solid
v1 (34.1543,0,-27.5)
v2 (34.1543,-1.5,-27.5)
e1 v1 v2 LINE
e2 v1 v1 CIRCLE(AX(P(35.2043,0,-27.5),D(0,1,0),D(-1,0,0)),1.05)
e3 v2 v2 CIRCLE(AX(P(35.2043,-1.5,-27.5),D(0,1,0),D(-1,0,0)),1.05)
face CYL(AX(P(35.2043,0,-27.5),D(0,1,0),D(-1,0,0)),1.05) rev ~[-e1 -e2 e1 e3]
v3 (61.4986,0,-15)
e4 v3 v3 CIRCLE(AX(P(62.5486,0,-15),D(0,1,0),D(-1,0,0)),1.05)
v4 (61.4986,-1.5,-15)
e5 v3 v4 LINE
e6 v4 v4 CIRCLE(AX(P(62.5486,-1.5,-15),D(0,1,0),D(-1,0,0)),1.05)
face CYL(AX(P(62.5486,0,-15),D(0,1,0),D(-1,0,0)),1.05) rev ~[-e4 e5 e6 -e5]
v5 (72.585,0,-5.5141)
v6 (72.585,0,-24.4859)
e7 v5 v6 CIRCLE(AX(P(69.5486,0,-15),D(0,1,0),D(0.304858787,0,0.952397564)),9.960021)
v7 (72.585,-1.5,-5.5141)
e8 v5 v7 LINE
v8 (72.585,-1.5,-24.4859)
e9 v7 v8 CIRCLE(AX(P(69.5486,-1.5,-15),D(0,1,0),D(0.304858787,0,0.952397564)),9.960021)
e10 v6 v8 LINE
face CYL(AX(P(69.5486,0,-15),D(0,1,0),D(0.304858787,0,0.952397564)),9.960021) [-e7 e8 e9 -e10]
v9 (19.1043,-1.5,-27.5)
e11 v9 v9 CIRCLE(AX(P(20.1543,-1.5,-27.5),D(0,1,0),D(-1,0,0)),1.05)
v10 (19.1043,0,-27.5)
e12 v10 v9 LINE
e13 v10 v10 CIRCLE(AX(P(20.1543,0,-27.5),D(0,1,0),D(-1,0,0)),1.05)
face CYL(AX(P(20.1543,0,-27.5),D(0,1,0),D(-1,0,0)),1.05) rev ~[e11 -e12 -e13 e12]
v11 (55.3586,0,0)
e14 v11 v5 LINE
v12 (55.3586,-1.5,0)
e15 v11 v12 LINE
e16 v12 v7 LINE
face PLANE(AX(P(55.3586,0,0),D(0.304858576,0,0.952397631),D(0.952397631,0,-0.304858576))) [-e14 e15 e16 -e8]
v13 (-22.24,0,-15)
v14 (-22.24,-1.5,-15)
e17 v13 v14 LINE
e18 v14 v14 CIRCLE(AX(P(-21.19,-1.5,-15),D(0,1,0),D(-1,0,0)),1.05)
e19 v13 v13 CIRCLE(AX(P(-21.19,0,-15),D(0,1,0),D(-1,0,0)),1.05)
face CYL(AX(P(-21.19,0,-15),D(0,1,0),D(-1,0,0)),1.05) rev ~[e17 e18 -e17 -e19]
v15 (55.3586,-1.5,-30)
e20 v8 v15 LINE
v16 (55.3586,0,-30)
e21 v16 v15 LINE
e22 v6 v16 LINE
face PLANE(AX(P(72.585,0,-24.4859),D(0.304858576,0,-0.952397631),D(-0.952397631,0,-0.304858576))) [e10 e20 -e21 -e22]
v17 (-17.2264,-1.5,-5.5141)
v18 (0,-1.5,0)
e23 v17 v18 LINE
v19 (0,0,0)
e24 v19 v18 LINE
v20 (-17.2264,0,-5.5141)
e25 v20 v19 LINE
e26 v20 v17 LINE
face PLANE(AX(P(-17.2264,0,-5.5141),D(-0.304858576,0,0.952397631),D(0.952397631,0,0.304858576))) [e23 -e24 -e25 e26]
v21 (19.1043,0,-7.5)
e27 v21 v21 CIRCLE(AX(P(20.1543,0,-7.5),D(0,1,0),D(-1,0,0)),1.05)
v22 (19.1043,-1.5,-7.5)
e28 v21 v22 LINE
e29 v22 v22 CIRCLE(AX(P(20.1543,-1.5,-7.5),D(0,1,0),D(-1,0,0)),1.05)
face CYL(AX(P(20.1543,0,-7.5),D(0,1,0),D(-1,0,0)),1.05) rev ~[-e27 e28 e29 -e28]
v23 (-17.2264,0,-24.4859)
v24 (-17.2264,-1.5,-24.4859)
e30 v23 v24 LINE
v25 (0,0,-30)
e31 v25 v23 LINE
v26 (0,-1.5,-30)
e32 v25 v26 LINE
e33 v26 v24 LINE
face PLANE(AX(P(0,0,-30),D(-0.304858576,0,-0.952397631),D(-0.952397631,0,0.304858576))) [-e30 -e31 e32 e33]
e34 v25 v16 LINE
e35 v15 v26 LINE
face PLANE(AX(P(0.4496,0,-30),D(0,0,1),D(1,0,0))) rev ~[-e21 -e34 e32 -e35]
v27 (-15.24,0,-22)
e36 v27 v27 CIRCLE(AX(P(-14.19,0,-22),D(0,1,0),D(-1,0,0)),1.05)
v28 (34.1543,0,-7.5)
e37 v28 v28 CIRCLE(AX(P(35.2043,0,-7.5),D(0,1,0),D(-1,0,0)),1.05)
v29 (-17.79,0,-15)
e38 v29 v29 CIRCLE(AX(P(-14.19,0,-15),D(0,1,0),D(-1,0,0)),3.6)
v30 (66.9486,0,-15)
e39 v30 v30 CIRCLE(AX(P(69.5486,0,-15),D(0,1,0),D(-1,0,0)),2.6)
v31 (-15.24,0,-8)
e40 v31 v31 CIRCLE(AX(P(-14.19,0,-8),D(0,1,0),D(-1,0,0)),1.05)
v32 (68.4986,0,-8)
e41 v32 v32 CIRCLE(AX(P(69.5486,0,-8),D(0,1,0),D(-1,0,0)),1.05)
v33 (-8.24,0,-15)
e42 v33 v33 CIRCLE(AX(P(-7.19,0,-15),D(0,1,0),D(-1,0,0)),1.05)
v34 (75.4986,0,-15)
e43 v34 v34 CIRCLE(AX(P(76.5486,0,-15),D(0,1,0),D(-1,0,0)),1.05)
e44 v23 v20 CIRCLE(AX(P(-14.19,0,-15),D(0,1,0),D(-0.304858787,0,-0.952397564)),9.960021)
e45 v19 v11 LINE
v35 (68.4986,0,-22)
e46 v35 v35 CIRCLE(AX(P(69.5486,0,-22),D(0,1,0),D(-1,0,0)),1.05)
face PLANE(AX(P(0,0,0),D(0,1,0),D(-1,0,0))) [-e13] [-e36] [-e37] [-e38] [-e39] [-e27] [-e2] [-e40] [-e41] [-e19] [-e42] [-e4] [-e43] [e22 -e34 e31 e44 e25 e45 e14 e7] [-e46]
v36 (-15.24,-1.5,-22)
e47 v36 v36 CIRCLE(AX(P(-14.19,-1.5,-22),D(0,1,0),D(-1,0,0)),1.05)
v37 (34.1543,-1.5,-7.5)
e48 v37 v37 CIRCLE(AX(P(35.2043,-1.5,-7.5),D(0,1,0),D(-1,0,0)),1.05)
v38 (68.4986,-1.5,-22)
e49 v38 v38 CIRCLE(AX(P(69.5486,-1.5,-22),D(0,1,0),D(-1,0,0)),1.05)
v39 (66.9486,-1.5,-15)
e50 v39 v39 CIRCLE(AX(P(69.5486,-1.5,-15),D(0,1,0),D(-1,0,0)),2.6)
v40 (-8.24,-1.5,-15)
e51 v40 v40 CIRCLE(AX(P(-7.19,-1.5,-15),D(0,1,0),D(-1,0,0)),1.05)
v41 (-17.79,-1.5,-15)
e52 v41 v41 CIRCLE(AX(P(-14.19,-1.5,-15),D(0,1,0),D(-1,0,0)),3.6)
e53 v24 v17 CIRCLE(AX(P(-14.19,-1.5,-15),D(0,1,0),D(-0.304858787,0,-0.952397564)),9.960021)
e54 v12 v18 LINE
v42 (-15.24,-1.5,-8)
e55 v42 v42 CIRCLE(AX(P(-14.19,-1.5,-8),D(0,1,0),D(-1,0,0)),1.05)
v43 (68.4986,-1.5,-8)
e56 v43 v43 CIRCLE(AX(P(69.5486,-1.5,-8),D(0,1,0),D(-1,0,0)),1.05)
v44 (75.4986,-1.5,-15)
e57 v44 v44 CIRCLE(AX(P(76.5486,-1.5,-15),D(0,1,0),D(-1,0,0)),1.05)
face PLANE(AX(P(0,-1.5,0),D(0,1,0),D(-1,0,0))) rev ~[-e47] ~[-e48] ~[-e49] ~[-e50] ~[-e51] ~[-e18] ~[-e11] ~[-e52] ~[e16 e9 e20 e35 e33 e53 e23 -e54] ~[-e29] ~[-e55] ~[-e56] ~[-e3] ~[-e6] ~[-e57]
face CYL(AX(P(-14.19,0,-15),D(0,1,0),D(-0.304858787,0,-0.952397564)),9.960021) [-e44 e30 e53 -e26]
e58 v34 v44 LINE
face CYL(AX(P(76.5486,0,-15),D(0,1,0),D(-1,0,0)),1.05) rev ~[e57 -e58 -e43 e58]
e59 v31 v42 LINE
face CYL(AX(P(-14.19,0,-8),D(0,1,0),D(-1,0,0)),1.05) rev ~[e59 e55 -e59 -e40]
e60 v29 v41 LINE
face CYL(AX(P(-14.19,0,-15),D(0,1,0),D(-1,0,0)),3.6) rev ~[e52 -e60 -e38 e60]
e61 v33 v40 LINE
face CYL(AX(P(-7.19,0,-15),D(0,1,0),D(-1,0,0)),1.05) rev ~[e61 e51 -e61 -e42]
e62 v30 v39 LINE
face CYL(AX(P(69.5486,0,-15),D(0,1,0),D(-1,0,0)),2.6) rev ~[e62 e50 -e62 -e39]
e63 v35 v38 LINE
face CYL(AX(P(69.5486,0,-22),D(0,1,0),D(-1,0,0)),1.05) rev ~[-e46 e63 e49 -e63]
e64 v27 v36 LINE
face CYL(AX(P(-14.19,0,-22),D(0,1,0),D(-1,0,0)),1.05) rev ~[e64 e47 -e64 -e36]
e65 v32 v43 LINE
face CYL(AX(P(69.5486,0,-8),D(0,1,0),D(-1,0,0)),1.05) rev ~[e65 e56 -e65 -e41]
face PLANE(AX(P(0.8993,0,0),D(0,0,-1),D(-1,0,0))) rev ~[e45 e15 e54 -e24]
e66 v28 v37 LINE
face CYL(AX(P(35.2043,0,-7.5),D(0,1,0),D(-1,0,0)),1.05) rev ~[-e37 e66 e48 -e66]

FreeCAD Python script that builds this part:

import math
import FreeCAD as App
import Part
import Sketcher

V = App.Vector
Q = App.Units.Quantity

doc = App.newDocument("Part")
body = doc.addObject("PartDesign::Body", "Body")

sketch1 = body.newObject("Sketcher::SketchObject", "Sketch")
sketch1.AttachmentSupport = (doc.getObject("XZ_Plane"), [""])
sketch1.MapMode = "FlatFace"
sketch1.addGeometry([
    Part.LineSegment(V(0, -30, 0), V(-17.2, -24.5, 0)),
    Part.ArcOfCircle(Part.Circle(V(-14.2, -15, 0), V(0, 0, 1), 10), math.radians(108), math.radians(252)),
    Part.LineSegment(V(-17.2, -5.5, 0), V(0, 0, 0)),
    Part.LineSegment(V(0, 0, 0), V(55.4, 0, 0)),
    Part.LineSegment(V(55.4, 0, 0), V(72.6, -5.5, 0)),
    Part.ArcOfCircle(Part.Circle(V(69.5, -15, 0), V(0, 0, 1), 10), math.radians(-72), math.radians(72)),
    Part.LineSegment(V(72.6, -24.5, 0), V(55.4, -30, 0)),
    Part.LineSegment(V(55.4, -30, 0), V(0, -30, 0)),
    Part.Circle(V(20.2, -7.5, 0), V(0, 0, 1), 1.1),
    Part.Circle(V(35.2, -27.5, 0), V(0, 0, 1), 1.1),
    Part.Circle(V(20.2, -27.5, 0), V(0, 0, 1), 1.1),
    Part.Circle(V(35.2, -7.5, 0), V(0, 0, 1), 1.1),
    Part.Circle(V(-14.2, -8, 0), V(0, 0, 1), 1.1),
    Part.Circle(V(-14.2, -22, 0), V(0, 0, 1), 1.1),
    Part.Circle(V(-7.2, -15, 0), V(0, 0, 1), 1.1),
    Part.Circle(V(-14.2, -15, 0), V(0, 0, 1), 3.6),
    Part.Circle(V(-21.2, -15, 0), V(0, 0, 1), 1.1),
    Part.Circle(V(69.5, -8, 0), V(0, 0, 1), 1.1),
    Part.Circle(V(69.5, -22, 0), V(0, 0, 1), 1.1),
    Part.Circle(V(76.5, -15, 0), V(0, 0, 1), 1.1),
    Part.Circle(V(69.5, -15, 0), V(0, 0, 1), 2.6),
    Part.Circle(V(62.5, -15, 0), V(0, 0, 1), 1.1),
], False)
sketch1.addConstraint([
    Sketcher.Constraint("Tangent", 0, 2, 1, 2),
    Sketcher.Constraint("Tangent", 1, 1, 2, 1),
    Sketcher.Constraint("Coincident", 2, 2, 3, 1),
    Sketcher.Constraint("Coincident", 3, 2, 4, 1),
    Sketcher.Constraint("Tangent", 4, 2, 5, 2),
    Sketcher.Constraint("Tangent", 5, 1, 6, 1),
    Sketcher.Constraint("Coincident", 6, 2, 7, 1),
    Sketcher.Constraint("Coincident", 7, 2, 0, 1),
    Sketcher.Constraint("Horizontal", 3),
    Sketcher.Constraint("Horizontal", 7),
    Sketcher.Constraint("Coincident", 2, 2, -1, 1),
    Sketcher.Constraint("Coincident", 15, 3, 1, 3),
    Sketcher.Constraint("Coincident", 20, 3, 5, 3),
    Sketcher.Constraint("Equal", 1, 5),
    Sketcher.Constraint("Equal", 8, 9),
    Sketcher.Constraint("Equal", 9, 10),
    Sketcher.Constraint("Equal", 10, 11),
    Sketcher.Constraint("Equal", 11, 12),
    Sketcher.Constraint("Equal", 12, 13),
    Sketcher.Constraint("Equal", 13, 14),
    Sketcher.Constraint("Equal", 14, 16),
    Sketcher.Constraint("Equal", 16, 17),
    Sketcher.Constraint("Equal", 17, 18),
    Sketcher.Constraint("Equal", 18, 19),
    Sketcher.Constraint("Equal", 19, 21),
    Sketcher.Constraint("PointOnObject", 7, 2, -2),
    Sketcher.Constraint("Parallel", 0, 4),
    Sketcher.Constraint("Parallel", 2, 6),
    Sketcher.Constraint("Horizontal", 1, 3, 5, 3),
    Sketcher.Constraint("Horizontal", 9, 3, 10, 3),
    Sketcher.Constraint("Horizontal", 8, 3, 11, 3),
    Sketcher.Constraint("Horizontal", 5, 3, 14, 3),
    Sketcher.Constraint("Horizontal", 15, 3, 16, 3),
    Sketcher.Constraint("Horizontal", 12, 3, 17, 3),
    Sketcher.Constraint("Horizontal", 13, 3, 18, 3),
    Sketcher.Constraint("Horizontal", 16, 3, 19, 3),
    Sketcher.Constraint("Horizontal", 20, 3, 21, 3),
    Sketcher.Constraint("Horizontal", 1, 1, 4, 2),
    Sketcher.Constraint("Vertical", 8, 3, 10, 3),
    Sketcher.Constraint("Vertical", 9, 3, 11, 3),
    Sketcher.Constraint("Vertical", 1, 3, 12, 3),
    Sketcher.Constraint("Vertical", 12, 3, 13, 3),
    Sketcher.Constraint("Vertical", 5, 3, 17, 3),
    Sketcher.Constraint("Vertical", 17, 3, 18, 3),
    Sketcher.Constraint("Diameter", 8, Q("2.1 mm")),
    Sketcher.Constraint("Diameter", 15, Q("7.2 mm")),
    Sketcher.Constraint("Diameter", 20, Q("5.2 mm")),
    Sketcher.Constraint("Radius", 1, Q("9.96 mm")),
    Sketcher.Constraint("DistanceY", 1, 3, -1, 1, Q("15 mm")),
    Sketcher.Constraint("DistanceY", 12, 3, -1, 1, Q("8 mm")),
    Sketcher.Constraint("DistanceY", 13, 3, -1, 1, Q("22 mm")),
    Sketcher.Constraint("DistanceY", 9, 3, 8, 3, Q("20 mm")),
    Sketcher.Constraint("DistanceX", 1, 3, 14, 3, Q("7 mm")),
    Sketcher.Constraint("DistanceX", 16, 3, 1, 3, Q("7 mm")),
    Sketcher.Constraint("DistanceX", 5, 3, 19, 3, Q("7 mm")),
    Sketcher.Constraint("DistanceX", 21, 3, 5, 3, Q("7 mm")),
    Sketcher.Constraint("DistanceY", 8, 3, -1, 1, Q("7.5 mm")),
    Sketcher.Constraint("Angle", 0, Q("162.2503 deg")),
    Sketcher.Constraint("DistanceX", 8, 3, 9, 3, Q("15.05 mm")),
    Sketcher.Constraint("DistanceX", 3, 1, 3, 2, Q("55.3586 mm")),
    Sketcher.Constraint("DistanceX", -1, 1, 8, 3, Q("20.1543 mm")),
])
pad1 = body.newObject("PartDesign::Pad", "Pad")
pad1.Profile = sketch1
pad1.Length = 1.5

doc.recompute()
